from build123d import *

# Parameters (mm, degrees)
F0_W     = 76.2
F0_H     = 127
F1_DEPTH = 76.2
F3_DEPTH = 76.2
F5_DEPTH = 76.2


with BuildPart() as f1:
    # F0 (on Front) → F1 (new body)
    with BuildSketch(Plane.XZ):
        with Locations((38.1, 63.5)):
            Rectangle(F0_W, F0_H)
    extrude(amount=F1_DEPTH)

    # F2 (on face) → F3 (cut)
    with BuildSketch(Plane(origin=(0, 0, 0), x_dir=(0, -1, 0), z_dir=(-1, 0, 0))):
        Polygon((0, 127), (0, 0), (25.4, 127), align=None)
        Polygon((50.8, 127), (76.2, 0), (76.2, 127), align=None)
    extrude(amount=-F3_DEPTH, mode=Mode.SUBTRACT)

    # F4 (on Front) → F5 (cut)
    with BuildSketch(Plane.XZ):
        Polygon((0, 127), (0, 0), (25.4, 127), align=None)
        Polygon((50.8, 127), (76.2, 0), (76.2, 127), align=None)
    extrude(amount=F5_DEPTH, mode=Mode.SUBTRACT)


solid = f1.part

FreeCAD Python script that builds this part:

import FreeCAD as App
import Part
import Sketcher
Q = App.Units.Quantity

doc = App.newDocument("Part")
body = doc.addObject("PartDesign::Body", "Body")

# Sketch on XZ plane
sketch1 = body.newObject("Sketcher::SketchObject", "Sketch")
sketch1.AttachmentSupport = (doc.getObject("XZ_Plane"), [""])
sketch1.MapMode = "FlatFace"
sketch1.addGeometry(Part.LineSegment(App.Vector(0, 127, 0), App.Vector(0, 0, 0)), False)
sketch1.addGeometry(Part.LineSegment(App.Vector(0, 0, 0), App.Vector(76.2, 0, 0)), False)
sketch1.addGeometry(Part.LineSegment(App.Vector(76.2, 0, 0), App.Vector(76.2, 127, 0)), False)
sketch1.addGeometry(Part.LineSegment(App.Vector(76.2, 127, 0), App.Vector(0, 127, 0)), False)
sketch1.addConstraint(Sketcher.Constraint("Coincident", 0, 2, 1, 1))
sketch1.addConstraint(Sketcher.Constraint("Coincident", 1, 2, 2, 1))
sketch1.addConstraint(Sketcher.Constraint("Coincident", 2, 2, 3, 1))
sketch1.addConstraint(Sketcher.Constraint("Coincident", 3, 2, 0, 1))
sketch1.addConstraint(Sketcher.Constraint("Vertical", 0))
sketch1.addConstraint(Sketcher.Constraint("Horizontal", 1))
sketch1.addConstraint(Sketcher.Constraint("Vertical", 2))
sketch1.addConstraint(Sketcher.Constraint("Horizontal", 3))
sketch1.addConstraint(Sketcher.Constraint("Coincident", 0, 2, -1, 1))
sketch1.addConstraint(Sketcher.Constraint("DistanceX", 1, 1, 1, 2, Q("3 in")))
sketch1.addConstraint(Sketcher.Constraint("DistanceY", 0, 2, 0, 1, Q("5 in")))
pad1 = body.newObject("PartDesign::Pad", "Pad")
pad1.Profile = sketch1
pad1.Length = Q("3 in")

# Sketch on YZ plane
sketch2 = body.newObject("Sketcher::SketchObject", "Sketch001")
sketch2.AttachmentSupport = (doc.getObject("YZ_Plane"), [""])
sketch2.MapMode = "FlatFace"
sketch2.addGeometry(Part.LineSegment(App.Vector(0, 127, 0), App.Vector(0, 0, 0)), False)
sketch2.addGeometry(Part.LineSegment(App.Vector(0, 0, 0), App.Vector(-25.4, 127, 0)), False)
sketch2.addGeometry(Part.LineSegment(App.Vector(-25.4, 127, 0), App.Vector(0, 127, 0)), False)
sketch2.addGeometry(Part.LineSegment(App.Vector(-50.8, 127, 0), App.Vector(-76.2, 0, 0)), False)
sketch2.addGeometry(Part.LineSegment(App.Vector(-76.2, 0, 0), App.Vector(-76.2, 127, 0)), False)
sketch2.addGeometry(Part.LineSegment(App.Vector(-76.2, 127, 0), App.Vector(-50.8, 127, 0)), False)
sketch2.addConstraint(Sketcher.Constraint("Coincident", 0, 2, 1, 1))
sketch2.addConstraint(Sketcher.Constraint("Coincident", 1, 2, 2, 1))
sketch2.addConstraint(Sketcher.Constraint("Coincident", 2, 2, 0, 1))
sketch2.addConstraint(Sketcher.Constraint("Coincident", 3, 2, 4, 1))
sketch2.addConstraint(Sketcher.Constraint("Coincident", 4, 2, 5, 1))
sketch2.addConstraint(Sketcher.Constraint("Coincident", 5, 2, 3, 1))
sketch2.addConstraint(Sketcher.Constraint("Vertical", 0))
sketch2.addConstraint(Sketcher.Constraint("Horizontal", 2))
sketch2.addConstraint(Sketcher.Constraint("Vertical", 4))
sketch2.addConstraint(Sketcher.Constraint("Horizontal", 5))
sketch2.addConstraint(Sketcher.Constraint("Coincident", 0, 2, -1, 1))
sketch2.addConstraint(Sketcher.Constraint("PointOnObject", 3, 2, -1))
sketch2.addConstraint(Sketcher.Constraint("Horizontal", 2, 2, 4, 2))
sketch2.addConstraint(Sketcher.Constraint("Equal", 2, 5))
sketch2.addConstraint(Sketcher.Constraint("DistanceX", 2, 1, 2, 2, Q("1 in")))
sketch2.addConstraint(Sketcher.Constraint("DistanceY", 0, 2, 0, 1, Q("5 in")))
sketch2.addConstraint(Sketcher.Constraint("DistanceX", 3, 2, -1, 1, Q("3 in")))
pocket1 = body.newObject("PartDesign::Pocket", "Pocket")
pocket1.Profile = sketch2
pocket1.Length = Q("3 in")
pocket1.Reversed = True

# Sketch on XZ plane
sketch3 = body.newObject("Sketcher::SketchObject", "Sketch002")
sketch3.AttachmentSupport = (doc.getObject("XZ_Plane"), [""])
sketch3.MapMode = "FlatFace"
sketch3.addGeometry(Part.LineSegment(App.Vector(0, 127, 0), App.Vector(0, 0, 0)), False)
sketch3.addGeometry(Part.LineSegment(App.Vector(0, 0, 0), App.Vector(25.4, 127, 0)), False)
sketch3.addGeometry(Part.LineSegment(App.Vector(25.4, 127, 0), App.Vector(0, 127, 0)), False)
sketch3.addGeometry(Part.LineSegment(App.Vector(50.8, 127, 0), App.Vector(76.2, 0, 0)), False)
sketch3.addGeometry(Part.LineSegment(App.Vector(76.2, 0, 0), App.Vector(76.2, 127, 0)), False)
sketch3.addGeometry(Part.LineSegment(App.Vector(76.2, 127, 0), App.Vector(50.8, 127, 0)), False)
sketch3.addConstraint(Sketcher.Constraint("Coincident", 0, 2, 1, 1))
sketch3.addConstraint(Sketcher.Constraint("Coincident", 1, 2, 2, 1))
sketch3.addConstraint(Sketcher.Constraint("Coincident", 2, 2, 0, 1))
sketch3.addConstraint(Sketcher.Constraint("Coincident", 3, 2, 4, 1))
sketch3.addConstraint(Sketcher.Constraint("Coincident", 4, 2, 5, 1))
sketch3.addConstraint(Sketcher.Constraint("Coincident", 5, 2, 3, 1))
sketch3.addConstraint(Sketcher.Constraint("Vertical", 0))
sketch3.addConstraint(Sketcher.Constraint("Horizontal", 2))
sketch3.addConstraint(Sketcher.Constraint("Vertical", 4))
sketch3.addConstraint(Sketcher.Constraint("Horizontal", 5))
sketch3.addConstraint(Sketcher.Constraint("Coincident", 0, 2, -1, 1))
sketch3.addConstraint(Sketcher.Constraint("PointOnObject", 3, 2, -1))
sketch3.addConstraint(Sketcher.Constraint("Horizontal", 2, 2, 4, 2))
sketch3.addConstraint(Sketcher.Constraint("Equal", 2, 5))
sketch3.addConstraint(Sketcher.Constraint("DistanceX", 2, 2, 2, 1, Q("1 in")))
sketch3.addConstraint(Sketcher.Constraint("DistanceY", 0, 2, 0, 1, Q("5 in")))
sketch3.addConstraint(Sketcher.Constraint("DistanceX", -1, 1, 3, 2, Q("3 in")))
pocket2 = body.newObject("PartDesign::Pocket", "Pocket001")
pocket2.Profile = sketch3
pocket2.Length = Q("3 in")
pocket2.Reversed = True

doc.recompute()
